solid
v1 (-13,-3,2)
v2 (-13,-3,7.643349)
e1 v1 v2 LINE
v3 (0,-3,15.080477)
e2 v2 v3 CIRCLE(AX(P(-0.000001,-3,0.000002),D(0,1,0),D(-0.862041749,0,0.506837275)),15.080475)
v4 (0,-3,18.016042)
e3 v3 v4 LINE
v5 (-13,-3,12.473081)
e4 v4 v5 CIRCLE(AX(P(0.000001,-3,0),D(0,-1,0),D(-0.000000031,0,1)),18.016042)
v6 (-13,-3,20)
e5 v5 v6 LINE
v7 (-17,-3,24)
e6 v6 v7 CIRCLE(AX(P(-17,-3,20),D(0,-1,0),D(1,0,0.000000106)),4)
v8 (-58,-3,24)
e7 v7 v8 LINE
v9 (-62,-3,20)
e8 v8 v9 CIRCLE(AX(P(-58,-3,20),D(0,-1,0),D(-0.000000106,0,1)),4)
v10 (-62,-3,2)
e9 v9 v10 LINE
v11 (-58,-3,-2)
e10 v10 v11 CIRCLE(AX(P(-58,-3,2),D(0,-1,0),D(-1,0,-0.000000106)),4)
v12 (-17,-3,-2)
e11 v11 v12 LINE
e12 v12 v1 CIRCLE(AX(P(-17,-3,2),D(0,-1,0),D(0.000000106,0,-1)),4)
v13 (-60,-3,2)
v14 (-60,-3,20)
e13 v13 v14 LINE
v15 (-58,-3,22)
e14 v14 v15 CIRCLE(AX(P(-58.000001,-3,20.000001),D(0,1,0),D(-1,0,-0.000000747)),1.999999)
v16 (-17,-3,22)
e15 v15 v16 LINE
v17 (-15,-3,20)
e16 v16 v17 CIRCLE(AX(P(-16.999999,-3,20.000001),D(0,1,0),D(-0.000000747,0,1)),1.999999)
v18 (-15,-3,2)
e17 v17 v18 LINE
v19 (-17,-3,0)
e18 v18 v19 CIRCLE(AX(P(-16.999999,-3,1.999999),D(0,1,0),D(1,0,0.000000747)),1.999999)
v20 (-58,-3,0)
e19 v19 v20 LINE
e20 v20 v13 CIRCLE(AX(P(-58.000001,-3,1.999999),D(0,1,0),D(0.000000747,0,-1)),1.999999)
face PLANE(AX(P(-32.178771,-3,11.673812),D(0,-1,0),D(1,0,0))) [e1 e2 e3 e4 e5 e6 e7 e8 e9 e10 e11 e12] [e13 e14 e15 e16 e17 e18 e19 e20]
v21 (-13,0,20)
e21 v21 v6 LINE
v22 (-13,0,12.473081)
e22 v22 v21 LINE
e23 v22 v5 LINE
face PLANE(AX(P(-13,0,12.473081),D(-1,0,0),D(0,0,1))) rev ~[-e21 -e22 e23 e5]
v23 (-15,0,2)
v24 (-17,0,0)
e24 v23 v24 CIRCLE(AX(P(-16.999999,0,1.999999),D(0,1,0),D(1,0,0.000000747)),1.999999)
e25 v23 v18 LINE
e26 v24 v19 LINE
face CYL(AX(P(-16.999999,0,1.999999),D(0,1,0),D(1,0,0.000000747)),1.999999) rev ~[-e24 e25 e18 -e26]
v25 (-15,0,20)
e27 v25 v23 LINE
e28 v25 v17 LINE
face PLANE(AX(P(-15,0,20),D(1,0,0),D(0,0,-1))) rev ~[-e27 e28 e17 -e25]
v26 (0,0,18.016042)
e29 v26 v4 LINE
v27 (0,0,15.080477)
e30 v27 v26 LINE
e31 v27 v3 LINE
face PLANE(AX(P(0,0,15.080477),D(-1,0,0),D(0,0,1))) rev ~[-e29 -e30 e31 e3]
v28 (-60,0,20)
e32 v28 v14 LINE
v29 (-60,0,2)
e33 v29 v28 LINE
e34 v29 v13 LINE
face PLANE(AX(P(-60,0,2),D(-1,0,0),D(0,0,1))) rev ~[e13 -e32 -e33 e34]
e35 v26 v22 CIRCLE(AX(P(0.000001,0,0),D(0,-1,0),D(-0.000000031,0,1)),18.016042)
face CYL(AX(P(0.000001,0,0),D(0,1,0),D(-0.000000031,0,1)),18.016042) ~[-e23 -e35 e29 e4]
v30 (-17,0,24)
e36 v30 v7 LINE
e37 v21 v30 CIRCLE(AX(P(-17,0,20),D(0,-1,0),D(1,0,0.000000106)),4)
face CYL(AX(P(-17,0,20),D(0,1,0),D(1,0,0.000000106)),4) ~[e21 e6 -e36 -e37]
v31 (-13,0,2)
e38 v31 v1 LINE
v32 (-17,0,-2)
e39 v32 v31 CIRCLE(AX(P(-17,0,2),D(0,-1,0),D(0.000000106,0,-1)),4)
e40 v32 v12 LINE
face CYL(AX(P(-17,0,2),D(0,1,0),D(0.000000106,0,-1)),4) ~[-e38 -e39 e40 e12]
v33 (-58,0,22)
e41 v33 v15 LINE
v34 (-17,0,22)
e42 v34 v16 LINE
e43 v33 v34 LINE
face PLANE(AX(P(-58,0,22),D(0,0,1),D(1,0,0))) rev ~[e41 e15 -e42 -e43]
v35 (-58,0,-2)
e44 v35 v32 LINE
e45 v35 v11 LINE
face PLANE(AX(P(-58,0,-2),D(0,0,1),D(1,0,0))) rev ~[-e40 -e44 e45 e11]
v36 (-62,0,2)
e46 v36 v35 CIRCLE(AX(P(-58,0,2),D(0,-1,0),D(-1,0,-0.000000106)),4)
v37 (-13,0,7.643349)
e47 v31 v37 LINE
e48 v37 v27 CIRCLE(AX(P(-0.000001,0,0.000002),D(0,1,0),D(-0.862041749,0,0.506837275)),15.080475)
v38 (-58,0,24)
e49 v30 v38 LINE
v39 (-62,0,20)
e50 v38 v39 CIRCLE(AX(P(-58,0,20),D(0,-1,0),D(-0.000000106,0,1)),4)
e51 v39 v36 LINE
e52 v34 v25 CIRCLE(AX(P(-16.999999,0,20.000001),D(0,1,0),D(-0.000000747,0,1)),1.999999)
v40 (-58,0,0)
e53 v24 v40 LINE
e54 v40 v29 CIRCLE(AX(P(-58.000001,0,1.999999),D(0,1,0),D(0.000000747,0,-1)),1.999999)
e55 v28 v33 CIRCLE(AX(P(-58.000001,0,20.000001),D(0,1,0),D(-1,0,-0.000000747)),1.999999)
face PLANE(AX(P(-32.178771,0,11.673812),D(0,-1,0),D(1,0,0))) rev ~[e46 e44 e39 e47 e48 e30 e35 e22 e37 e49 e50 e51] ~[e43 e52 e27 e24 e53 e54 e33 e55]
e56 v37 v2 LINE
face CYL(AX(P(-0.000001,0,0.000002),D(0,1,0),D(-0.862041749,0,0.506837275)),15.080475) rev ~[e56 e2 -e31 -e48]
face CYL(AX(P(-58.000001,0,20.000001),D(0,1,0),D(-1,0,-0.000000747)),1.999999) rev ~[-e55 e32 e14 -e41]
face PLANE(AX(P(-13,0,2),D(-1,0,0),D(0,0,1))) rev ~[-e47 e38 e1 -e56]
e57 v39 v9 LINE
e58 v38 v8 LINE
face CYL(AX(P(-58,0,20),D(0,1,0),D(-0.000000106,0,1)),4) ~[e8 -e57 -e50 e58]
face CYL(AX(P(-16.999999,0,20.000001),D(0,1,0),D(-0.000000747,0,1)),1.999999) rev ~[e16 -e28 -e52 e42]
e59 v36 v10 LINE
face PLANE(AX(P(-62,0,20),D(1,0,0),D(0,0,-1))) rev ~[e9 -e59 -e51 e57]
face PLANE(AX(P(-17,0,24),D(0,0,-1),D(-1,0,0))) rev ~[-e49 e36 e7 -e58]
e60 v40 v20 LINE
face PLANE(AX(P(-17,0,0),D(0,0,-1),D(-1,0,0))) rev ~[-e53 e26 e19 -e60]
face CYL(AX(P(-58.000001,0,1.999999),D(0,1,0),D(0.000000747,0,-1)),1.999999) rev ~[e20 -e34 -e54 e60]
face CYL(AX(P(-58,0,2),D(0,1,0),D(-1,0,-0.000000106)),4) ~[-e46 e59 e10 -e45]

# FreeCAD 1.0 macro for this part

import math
import FreeCAD as App
import Part
import Sketcher

V = App.Vector
Q = App.Units.Quantity

doc = App.newDocument("Part")
body = doc.addObject("PartDesign::Body", "Body")

# Sketch on XZ plane
sketch1 = doc.addObject("Sketcher::SketchObject", "Sketch")
body.addObject(sketch1)
sketch1.AttachmentSupport = (doc.XZ_Plane, [""])
sketch1.MapMode = "FlatFace"
sketch1.addGeometry(Part.LineSegment(V(-17, 24, 0), V(-58, 24, 0)), False)
sketch1.addGeometry(Part.ArcOfCircle(Part.Circle(V(-58, 20, 0), V(0, 0, 1), 4), math.radians(90), math.radians(180)), False)
sketch1.addGeometry(Part.LineSegment(V(-62, 20, 0), V(-62, 2, 0)), False)
sketch1.addGeometry(Part.ArcOfCircle(Part.Circle(V(-58, 2, 0), V(0, 0, 1), 4), math.radians(-180), math.radians(-90)), False)
sketch1.addGeometry(Part.LineSegment(V(-58, -2, 0), V(-17, -2, 0)), False)
sketch1.addGeometry(Part.ArcOfCircle(Part.Circle(V(-17, 2, 0), V(0, 0, 1), 4), math.radians(-90), math.radians(0)), False)
sketch1.addGeometry(Part.LineSegment(V(-13, 2, 0), V(-13, 7.6, 0)), False)
sketch1.addGeometry(Part.ArcOfCircle(Part.Circle(V(0, 0, 0), V(0, 0, 1), 15.1), math.radians(90), math.radians(150)), False)
sketch1.addGeometry(Part.LineSegment(V(0, 15.1, 0), V(0, 18, 0)), False)
sketch1.addGeometry(Part.ArcOfCircle(Part.Circle(V(0, 0, 0), V(0, 0, 1), 18), math.radians(90), math.radians(136)), False)
sketch1.addGeometry(Part.LineSegment(V(-13, 12.5, 0), V(-13, 20, 0)), False)
sketch1.addGeometry(Part.ArcOfCircle(Part.Circle(V(-17, 20, 0), V(0, 0, 1), 4), math.radians(0), math.radians(90)), False)
sketch1.addGeometry(Part.ArcOfCircle(Part.Circle(V(-17, 2, 0), V(0, 0, 1), 2), math.radians(-90), math.radians(0)), False)
sketch1.addGeometry(Part.LineSegment(V(-17, 0, 0), V(-58, 0, 0)), False)
sketch1.addGeometry(Part.ArcOfCircle(Part.Circle(V(-58, 2, 0), V(0, 0, 1), 2), math.radians(180), math.radians(270)), False)
sketch1.addGeometry(Part.LineSegment(V(-60, 2, 0), V(-60, 20, 0)), False)
sketch1.addGeometry(Part.ArcOfCircle(Part.Circle(V(-58, 20, 0), V(0, 0, 1), 2), math.radians(90), math.radians(180)), False)
sketch1.addGeometry(Part.LineSegment(V(-58, 22, 0), V(-17, 22, 0)), False)
sketch1.addGeometry(Part.ArcOfCircle(Part.Circle(V(-17, 20, 0), V(0, 0, 1), 2), math.radians(0), math.radians(90)), False)
sketch1.addGeometry(Part.LineSegment(V(-15, 20, 0), V(-15, 2, 0)), False)
sketch1.addConstraint(Sketcher.Constraint("Tangent", 0, 2, 1, 1))
sketch1.addConstraint(Sketcher.Constraint("Tangent", 1, 2, 2, 1))
sketch1.addConstraint(Sketcher.Constraint("Tangent", 2, 2, 3, 1))
sketch1.addConstraint(Sketcher.Constraint("Tangent", 3, 2, 4, 1))
sketch1.addConstraint(Sketcher.Constraint("Tangent", 4, 2, 5, 1))
sketch1.addConstraint(Sketcher.Constraint("Tangent", 5, 2, 6, 1))
sketch1.addConstraint(Sketcher.Constraint("Coincident", 6, 2, 7, 2))
sketch1.addConstraint(Sketcher.Constraint("Coincident", 7, 1, 8, 1))
sketch1.addConstraint(Sketcher.Constraint("Coincident", 8, 2, 9, 1))
sketch1.addConstraint(Sketcher.Constraint("Coincident", 9, 2, 10, 1))
sketch1.addConstraint(Sketcher.Constraint("Tangent", 10, 2, 11, 1))
sketch1.addConstraint(Sketcher.Constraint("Tangent", 11, 2, 0, 1))
sketch1.addConstraint(Sketcher.Constraint("Tangent", 12, 1, 13, 1))
sketch1.addConstraint(Sketcher.Constraint("Tangent", 13, 2, 14, 2))
sketch1.addConstraint(Sketcher.Constraint("Tangent", 14, 1, 15, 1))
sketch1.addConstraint(Sketcher.Constraint("Tangent", 15, 2, 16, 2))
sketch1.addConstraint(Sketcher.Constraint("Tangent", 16, 1, 17, 1))
sketch1.addConstraint(Sketcher.Constraint("Tangent", 17, 2, 18, 2))
sketch1.addConstraint(Sketcher.Constraint("Tangent", 18, 1, 19, 1))
sketch1.addConstraint(Sketcher.Constraint("Tangent", 19, 2, 12, 2))
sketch1.addConstraint(Sketcher.Constraint("Horizontal", 0))
sketch1.addConstraint(Sketcher.Constraint("Vertical", 2))
sketch1.addConstraint(Sketcher.Constraint("Horizontal", 4))
sketch1.addConstraint(Sketcher.Constraint("Vertical", 6))
sketch1.addConstraint(Sketcher.Constraint("Vertical", 8))
sketch1.addConstraint(Sketcher.Constraint("Vertical", 10))
sketch1.addConstraint(Sketcher.Constraint("Horizontal", 13))
sketch1.addConstraint(Sketcher.Constraint("Vertical", 15))
sketch1.addConstraint(Sketcher.Constraint("Horizontal", 17))
sketch1.addConstraint(Sketcher.Constraint("Vertical", 19))
sketch1.addConstraint(Sketcher.Constraint("Coincident", 7, 3, -1, 1))
sketch1.addConstraint(Sketcher.Constraint("Coincident", 9, 3, -1, 1))
sketch1.addConstraint(Sketcher.Constraint("Coincident", 12, 3, 5, 3))
sketch1.addConstraint(Sketcher.Constraint("Coincident", 14, 3, 3, 3))
sketch1.addConstraint(Sketcher.Constraint("Coincident", 16, 3, 1, 3))
sketch1.addConstraint(Sketcher.Constraint("Coincident", 18, 3, 11, 3))
sketch1.addConstraint(Sketcher.Constraint("Equal", 1, 3))
sketch1.addConstraint(Sketcher.Constraint("Equal", 3, 5))
sketch1.addConstraint(Sketcher.Constraint("Equal", 5, 11))
sketch1.addConstraint(Sketcher.Constraint("PointOnObject", 7, 1, -2))
sketch1.addConstraint(Sketcher.Constraint("PointOnObject", 12, 1, -1))
sketch1.addConstraint(Sketcher.Constraint("Radius", 1, Q("4 mm")))
sketch1.addConstraint(Sketcher.Constraint("Radius", 12, Q("1.999999 mm")))
sketch1.addConstraint(Sketcher.Constraint("DistanceX", 0, 2, 0, 1, Q("41 mm")))
sketch1.addConstraint(Sketcher.Constraint("DistanceY", 2, 2, 2, 1, Q("18 mm")))
sketch1.addConstraint(Sketcher.Constraint("DistanceX", 1, 3, -1, 1, Q("58 mm")))
sketch1.addConstraint(Sketcher.Constraint("Radius", 9, Q("18.016042 mm")))
sketch1.addConstraint(Sketcher.Constraint("Radius", 7, Q("15.080475 mm")))
pad1 = doc.addObject("PartDesign::Pad", "Pad")
body.addObject(pad1)
pad1.Profile = sketch1
pad1.Length = 3

doc.recompute()
